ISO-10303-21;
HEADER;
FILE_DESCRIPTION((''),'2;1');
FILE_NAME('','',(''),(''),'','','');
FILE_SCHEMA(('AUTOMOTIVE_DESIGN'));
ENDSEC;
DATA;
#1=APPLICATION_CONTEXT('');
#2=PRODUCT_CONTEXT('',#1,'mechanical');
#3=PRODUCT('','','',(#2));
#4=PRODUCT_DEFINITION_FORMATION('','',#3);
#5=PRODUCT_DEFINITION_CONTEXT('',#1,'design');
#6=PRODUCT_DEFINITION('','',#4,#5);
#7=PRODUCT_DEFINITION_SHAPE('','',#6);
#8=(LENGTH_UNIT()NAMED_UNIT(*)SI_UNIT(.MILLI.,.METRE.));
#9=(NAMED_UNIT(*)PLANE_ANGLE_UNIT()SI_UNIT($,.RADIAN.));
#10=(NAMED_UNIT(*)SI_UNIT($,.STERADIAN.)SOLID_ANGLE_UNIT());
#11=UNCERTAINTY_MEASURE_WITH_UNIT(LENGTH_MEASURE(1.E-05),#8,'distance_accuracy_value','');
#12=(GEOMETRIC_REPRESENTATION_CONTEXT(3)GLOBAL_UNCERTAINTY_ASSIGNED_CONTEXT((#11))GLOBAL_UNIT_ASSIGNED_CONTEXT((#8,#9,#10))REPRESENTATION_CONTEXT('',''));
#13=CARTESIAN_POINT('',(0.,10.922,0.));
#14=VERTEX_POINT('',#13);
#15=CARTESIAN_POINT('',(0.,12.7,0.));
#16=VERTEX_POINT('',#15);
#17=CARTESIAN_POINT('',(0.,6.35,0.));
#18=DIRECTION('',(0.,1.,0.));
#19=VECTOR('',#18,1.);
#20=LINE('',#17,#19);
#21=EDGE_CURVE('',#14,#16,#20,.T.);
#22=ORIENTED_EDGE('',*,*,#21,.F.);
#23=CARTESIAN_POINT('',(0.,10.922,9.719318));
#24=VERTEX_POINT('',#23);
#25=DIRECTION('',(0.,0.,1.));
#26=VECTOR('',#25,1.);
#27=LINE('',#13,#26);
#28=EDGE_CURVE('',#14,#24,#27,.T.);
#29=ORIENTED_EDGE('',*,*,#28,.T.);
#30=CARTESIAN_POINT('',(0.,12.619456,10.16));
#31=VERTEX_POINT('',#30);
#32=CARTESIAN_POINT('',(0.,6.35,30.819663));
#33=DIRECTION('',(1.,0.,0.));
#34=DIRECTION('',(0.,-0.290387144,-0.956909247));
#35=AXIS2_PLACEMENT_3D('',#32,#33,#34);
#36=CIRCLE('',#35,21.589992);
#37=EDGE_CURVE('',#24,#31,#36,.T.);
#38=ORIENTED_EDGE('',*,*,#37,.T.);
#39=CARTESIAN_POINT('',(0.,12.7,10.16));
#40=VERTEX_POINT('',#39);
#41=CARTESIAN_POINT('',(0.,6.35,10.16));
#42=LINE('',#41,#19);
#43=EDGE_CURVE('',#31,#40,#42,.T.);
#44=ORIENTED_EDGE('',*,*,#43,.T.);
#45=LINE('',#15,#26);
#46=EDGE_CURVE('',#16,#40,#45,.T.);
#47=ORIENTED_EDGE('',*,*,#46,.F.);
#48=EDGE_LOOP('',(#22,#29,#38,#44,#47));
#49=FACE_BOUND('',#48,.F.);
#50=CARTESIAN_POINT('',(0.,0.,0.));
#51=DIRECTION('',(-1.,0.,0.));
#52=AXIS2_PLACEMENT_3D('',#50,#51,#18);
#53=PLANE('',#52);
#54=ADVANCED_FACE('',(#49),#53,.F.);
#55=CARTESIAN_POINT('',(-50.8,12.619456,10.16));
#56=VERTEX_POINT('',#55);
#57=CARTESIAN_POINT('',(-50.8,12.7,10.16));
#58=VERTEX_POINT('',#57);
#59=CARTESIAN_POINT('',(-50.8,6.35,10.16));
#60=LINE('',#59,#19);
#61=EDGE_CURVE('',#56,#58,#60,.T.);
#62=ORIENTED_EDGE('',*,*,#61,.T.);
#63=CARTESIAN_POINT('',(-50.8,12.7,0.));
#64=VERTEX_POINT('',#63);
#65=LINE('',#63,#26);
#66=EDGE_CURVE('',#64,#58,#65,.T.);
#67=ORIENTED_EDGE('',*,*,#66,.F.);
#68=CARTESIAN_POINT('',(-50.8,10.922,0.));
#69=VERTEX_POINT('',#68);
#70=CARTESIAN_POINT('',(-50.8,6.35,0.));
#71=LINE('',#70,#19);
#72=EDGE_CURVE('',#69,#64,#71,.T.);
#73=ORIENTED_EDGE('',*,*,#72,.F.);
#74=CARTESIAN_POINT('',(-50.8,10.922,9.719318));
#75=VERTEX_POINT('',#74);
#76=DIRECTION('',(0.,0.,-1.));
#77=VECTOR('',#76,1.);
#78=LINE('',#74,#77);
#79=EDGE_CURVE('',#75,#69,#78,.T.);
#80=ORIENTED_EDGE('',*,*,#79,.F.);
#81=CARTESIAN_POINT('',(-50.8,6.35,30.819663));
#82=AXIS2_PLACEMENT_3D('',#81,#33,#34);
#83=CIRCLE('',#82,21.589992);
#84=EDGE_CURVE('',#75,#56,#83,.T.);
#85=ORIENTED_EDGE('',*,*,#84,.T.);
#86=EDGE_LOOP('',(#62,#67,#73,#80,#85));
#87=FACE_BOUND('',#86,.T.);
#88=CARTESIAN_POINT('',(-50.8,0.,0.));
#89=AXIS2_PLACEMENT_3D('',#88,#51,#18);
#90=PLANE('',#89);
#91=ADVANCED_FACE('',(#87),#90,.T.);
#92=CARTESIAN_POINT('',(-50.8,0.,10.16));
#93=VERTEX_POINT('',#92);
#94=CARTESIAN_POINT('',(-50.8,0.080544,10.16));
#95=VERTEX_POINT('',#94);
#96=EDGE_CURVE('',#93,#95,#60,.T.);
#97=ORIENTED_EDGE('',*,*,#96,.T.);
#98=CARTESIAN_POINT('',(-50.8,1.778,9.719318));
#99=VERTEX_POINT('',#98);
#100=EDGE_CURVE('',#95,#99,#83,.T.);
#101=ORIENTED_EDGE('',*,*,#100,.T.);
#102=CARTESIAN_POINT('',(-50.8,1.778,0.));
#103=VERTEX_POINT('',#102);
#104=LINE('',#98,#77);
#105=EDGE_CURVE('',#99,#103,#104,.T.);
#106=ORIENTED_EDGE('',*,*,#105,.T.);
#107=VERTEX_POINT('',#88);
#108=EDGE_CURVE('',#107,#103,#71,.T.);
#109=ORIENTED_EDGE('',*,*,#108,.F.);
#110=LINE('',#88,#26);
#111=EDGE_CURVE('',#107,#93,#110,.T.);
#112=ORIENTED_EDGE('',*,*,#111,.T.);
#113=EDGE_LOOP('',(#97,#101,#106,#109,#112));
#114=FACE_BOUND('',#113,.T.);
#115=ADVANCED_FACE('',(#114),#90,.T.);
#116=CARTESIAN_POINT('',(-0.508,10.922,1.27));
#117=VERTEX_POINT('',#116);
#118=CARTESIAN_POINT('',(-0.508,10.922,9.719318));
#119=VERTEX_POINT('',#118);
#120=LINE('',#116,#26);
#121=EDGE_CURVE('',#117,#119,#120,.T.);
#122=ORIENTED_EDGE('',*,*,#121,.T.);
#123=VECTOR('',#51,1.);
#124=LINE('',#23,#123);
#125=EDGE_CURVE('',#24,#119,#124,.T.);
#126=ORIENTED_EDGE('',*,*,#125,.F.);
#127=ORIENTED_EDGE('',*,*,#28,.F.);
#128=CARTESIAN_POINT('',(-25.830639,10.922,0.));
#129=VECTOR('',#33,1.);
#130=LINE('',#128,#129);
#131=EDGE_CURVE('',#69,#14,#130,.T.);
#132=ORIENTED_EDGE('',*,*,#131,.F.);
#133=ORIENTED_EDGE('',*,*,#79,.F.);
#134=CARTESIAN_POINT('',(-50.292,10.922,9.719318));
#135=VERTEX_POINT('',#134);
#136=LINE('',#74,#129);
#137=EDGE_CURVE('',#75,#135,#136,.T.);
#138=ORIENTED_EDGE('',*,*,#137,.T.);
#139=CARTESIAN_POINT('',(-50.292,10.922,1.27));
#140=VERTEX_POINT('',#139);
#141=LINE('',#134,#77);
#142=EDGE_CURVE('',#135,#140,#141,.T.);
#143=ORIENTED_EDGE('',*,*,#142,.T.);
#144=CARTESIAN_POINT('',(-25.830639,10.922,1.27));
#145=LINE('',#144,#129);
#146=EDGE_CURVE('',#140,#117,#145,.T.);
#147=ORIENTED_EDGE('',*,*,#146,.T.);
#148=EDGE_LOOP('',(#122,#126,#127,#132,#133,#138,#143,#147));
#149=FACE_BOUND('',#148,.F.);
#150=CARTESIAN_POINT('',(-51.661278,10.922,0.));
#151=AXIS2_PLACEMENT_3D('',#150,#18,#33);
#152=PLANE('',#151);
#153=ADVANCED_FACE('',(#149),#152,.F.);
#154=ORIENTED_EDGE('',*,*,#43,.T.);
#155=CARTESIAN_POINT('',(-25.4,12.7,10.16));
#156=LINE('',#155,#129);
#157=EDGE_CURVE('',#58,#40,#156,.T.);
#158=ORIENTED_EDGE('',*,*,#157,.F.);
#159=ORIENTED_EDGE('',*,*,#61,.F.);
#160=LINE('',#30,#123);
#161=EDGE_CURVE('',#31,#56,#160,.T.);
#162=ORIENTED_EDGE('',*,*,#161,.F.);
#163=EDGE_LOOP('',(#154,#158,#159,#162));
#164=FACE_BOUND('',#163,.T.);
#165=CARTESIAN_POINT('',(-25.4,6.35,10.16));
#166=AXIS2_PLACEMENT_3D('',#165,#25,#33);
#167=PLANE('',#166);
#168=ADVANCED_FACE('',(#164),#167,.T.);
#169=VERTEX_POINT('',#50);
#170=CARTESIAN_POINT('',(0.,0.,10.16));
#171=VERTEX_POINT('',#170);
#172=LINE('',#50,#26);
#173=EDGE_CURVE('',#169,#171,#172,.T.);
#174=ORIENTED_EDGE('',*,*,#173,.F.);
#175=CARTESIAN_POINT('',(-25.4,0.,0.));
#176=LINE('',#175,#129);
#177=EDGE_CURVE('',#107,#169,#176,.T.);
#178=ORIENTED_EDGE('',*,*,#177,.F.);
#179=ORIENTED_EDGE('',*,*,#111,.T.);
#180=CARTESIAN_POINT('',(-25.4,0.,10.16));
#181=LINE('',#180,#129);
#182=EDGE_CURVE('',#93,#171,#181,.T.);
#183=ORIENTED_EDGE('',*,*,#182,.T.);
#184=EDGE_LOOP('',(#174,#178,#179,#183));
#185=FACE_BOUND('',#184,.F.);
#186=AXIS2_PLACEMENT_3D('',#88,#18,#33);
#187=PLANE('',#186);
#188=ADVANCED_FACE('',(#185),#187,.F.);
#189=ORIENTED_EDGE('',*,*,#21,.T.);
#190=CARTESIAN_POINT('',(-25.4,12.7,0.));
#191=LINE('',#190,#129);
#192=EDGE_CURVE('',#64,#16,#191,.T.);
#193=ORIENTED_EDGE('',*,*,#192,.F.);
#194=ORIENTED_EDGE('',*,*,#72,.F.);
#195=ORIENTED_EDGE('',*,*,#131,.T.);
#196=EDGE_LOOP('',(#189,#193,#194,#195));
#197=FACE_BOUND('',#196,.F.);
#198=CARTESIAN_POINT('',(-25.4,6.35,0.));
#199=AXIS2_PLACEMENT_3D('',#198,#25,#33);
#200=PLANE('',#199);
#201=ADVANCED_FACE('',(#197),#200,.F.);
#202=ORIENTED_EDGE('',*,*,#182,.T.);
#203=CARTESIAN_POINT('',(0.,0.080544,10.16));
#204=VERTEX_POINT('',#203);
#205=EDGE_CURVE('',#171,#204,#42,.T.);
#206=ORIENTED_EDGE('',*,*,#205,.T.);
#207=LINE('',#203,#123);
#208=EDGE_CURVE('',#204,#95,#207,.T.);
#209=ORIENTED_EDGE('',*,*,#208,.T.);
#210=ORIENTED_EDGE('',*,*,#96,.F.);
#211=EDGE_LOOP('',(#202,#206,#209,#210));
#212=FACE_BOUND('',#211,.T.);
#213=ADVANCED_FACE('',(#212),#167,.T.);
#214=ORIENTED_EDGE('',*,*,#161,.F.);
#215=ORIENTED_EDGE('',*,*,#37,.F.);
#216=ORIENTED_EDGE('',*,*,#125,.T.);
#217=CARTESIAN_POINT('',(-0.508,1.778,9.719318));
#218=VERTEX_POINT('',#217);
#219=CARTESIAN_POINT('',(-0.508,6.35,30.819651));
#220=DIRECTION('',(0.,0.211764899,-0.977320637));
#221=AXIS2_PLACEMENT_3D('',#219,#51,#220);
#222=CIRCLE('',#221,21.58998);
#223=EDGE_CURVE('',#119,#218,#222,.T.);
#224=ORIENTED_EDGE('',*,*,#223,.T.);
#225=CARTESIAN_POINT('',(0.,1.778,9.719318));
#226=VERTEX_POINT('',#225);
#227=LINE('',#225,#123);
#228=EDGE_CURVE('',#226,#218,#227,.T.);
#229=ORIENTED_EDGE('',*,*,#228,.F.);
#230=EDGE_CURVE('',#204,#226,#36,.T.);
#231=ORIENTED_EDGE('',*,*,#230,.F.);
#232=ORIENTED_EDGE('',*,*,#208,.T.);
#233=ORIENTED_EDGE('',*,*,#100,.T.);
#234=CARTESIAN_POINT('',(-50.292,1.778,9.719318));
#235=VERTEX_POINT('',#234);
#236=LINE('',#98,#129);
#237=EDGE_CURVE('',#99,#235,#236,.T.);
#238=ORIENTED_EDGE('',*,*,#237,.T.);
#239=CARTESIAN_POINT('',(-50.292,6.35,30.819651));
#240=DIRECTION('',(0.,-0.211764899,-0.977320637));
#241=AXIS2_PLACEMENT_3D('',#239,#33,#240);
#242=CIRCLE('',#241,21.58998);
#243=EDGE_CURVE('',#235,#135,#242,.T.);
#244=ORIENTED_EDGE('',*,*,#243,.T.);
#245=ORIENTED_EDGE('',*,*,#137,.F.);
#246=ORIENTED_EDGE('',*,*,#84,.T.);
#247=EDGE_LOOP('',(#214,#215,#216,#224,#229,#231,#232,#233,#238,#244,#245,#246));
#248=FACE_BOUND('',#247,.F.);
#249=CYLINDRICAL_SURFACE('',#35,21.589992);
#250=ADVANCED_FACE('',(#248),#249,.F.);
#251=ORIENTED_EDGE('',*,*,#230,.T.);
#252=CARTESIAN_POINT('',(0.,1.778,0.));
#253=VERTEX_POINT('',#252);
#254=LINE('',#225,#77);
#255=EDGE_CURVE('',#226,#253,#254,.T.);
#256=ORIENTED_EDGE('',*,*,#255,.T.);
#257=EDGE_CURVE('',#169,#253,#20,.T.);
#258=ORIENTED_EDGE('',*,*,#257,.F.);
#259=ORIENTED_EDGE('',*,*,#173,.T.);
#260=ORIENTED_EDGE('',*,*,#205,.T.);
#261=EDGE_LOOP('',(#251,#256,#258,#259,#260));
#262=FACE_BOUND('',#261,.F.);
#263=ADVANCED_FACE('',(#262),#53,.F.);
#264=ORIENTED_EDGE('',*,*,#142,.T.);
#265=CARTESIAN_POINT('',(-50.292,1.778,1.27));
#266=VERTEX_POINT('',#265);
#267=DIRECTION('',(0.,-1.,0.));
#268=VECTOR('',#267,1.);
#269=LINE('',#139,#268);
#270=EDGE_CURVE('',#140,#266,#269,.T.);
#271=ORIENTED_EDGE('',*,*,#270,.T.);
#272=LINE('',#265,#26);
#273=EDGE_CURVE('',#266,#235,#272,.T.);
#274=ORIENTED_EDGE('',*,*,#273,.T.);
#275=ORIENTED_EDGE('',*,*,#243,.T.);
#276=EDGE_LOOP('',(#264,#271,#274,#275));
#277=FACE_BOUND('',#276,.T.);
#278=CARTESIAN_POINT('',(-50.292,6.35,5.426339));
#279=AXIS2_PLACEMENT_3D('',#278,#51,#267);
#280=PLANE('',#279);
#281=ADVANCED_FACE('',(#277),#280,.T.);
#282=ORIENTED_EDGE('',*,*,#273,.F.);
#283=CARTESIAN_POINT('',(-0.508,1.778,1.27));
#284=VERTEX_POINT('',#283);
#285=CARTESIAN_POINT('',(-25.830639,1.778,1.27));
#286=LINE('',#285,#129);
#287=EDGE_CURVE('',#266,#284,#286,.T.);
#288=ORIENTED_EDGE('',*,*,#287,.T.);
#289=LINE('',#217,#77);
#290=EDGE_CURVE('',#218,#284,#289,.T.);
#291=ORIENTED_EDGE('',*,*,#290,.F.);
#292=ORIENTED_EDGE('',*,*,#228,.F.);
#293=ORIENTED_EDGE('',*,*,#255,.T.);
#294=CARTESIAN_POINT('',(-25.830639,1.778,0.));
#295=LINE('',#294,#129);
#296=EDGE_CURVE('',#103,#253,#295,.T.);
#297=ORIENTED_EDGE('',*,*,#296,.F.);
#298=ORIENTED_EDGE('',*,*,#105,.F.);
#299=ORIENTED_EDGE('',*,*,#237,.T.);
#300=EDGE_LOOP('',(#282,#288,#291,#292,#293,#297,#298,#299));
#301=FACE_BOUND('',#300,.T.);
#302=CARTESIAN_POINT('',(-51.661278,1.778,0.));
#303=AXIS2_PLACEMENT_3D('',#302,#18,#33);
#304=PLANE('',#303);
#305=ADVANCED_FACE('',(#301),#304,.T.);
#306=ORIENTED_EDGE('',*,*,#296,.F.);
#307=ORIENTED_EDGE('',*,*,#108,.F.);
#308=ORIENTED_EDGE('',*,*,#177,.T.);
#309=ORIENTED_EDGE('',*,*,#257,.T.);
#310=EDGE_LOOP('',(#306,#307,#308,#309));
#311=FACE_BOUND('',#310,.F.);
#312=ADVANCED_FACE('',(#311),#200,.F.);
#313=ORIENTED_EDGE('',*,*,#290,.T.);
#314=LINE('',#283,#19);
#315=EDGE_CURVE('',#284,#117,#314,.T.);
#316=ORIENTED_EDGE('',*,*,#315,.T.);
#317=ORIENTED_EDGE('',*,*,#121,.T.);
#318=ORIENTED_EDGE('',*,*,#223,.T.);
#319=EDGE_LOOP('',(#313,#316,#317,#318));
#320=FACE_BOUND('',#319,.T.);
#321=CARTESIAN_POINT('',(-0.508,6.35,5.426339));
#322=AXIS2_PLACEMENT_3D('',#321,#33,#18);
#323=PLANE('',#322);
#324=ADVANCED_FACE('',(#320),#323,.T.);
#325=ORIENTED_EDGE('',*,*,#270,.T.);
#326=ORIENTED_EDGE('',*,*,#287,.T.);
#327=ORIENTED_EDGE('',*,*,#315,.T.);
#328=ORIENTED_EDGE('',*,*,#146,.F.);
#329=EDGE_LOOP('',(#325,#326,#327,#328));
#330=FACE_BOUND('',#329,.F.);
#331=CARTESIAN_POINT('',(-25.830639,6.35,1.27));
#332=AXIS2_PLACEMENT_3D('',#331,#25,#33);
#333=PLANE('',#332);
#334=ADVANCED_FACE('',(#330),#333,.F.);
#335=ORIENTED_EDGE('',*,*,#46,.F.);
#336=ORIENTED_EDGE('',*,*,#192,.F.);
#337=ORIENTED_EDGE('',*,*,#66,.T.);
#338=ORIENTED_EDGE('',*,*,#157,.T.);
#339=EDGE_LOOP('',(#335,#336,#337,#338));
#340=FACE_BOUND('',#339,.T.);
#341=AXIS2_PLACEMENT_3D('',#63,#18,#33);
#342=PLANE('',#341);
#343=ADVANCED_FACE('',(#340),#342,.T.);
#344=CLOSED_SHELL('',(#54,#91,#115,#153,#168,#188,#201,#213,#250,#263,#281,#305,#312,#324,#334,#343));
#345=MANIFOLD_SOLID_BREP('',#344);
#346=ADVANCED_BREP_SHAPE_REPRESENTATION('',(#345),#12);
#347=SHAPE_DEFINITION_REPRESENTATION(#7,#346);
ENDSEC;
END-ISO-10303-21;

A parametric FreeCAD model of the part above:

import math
import FreeCAD as App
import Part
import Sketcher

V = App.Vector
Q = App.Units.Quantity

doc = App.newDocument("Part")
body = doc.addObject("PartDesign::Body", "Body")

sketch1 = body.newObject("Sketcher::SketchObject", "Sketch")
sketch1.AttachmentSupport = (doc.getObject("XY_Plane"), [""])
sketch1.MapMode = "FlatFace"
sketch1.addGeometry([
    Part.LineSegment(V(-50.8, 12.7, 0), V(-50.8, 0, 0)),
    Part.LineSegment(V(-50.8, 0, 0), V(0, 0, 0)),
    Part.LineSegment(V(0, 0, 0), V(0, 12.7, 0)),
    Part.LineSegment(V(0, 12.7, 0), V(-50.8, 12.7, 0)),
], False)
sketch1.addConstraint([
    Sketcher.Constraint("Coincident", 0, 2, 1, 1),
    Sketcher.Constraint("Coincident", 1, 2, 2, 1),
    Sketcher.Constraint("Coincident", 2, 2, 3, 1),
    Sketcher.Constraint("Coincident", 3, 2, 0, 1),
    Sketcher.Constraint("Vertical", 0),
    Sketcher.Constraint("Horizontal", 1),
    Sketcher.Constraint("Vertical", 2),
    Sketcher.Constraint("Horizontal", 3),
    Sketcher.Constraint("Coincident", 1, 2, -1, 1),
    Sketcher.Constraint("DistanceX", 1, 1, 1, 2, Q("2 in")),
    Sketcher.Constraint("DistanceY", 0, 2, 0, 1, Q("0.5 in")),
])
pad1 = body.newObject("PartDesign::Pad", "Pad")
pad1.Profile = sketch1
pad1.Length = Q("0.4 in")

sketch2 = body.newObject("Sketcher::SketchObject", "Sketch001")
sketch2.AttachmentSupport = (doc.getObject("XY_Plane"), [""])
sketch2.MapMode = "FlatFace"
sketch2.addGeometry([
    Part.LineSegment(V(-51.661278, 10.922, 0), V(-51.661278, 1.778, 0)),
    Part.LineSegment(V(-51.661278, 1.778, 0), V(0, 1.778, 0)),
    Part.LineSegment(V(0, 1.778, 0), V(0, 10.922, 0)),
    Part.LineSegment(V(0, 10.922, 0), V(-51.661278, 10.922, 0)),
], False)
sketch2.addConstraint([
    Sketcher.Constraint("Coincident", 0, 2, 1, 1),
    Sketcher.Constraint("Coincident", 1, 2, 2, 1),
    Sketcher.Constraint("Coincident", 2, 2, 3, 1),
    Sketcher.Constraint("Coincident", 3, 2, 0, 1),
    Sketcher.Constraint("Vertical", 0),
    Sketcher.Constraint("Horizontal", 1),
    Sketcher.Constraint("Vertical", 2),
    Sketcher.Constraint("Horizontal", 3),
    Sketcher.Constraint("PointOnObject", 1, 2, -2),
    Sketcher.Constraint("DistanceY", 0, 2, 0, 1, Q("0.36 in")),
    Sketcher.Constraint("DistanceY", -1, 1, 0, 2, Q("0.07 in")),
    Sketcher.Constraint("DistanceX", 1, 1, 1, 2, Q("51.661278 mm")),
])
pocket1 = body.newObject("PartDesign::Pocket", "Pocket")
pocket1.Profile = sketch2
pocket1.Length = Q("0.05 in")
pocket1.Reversed = True

sketch3 = body.newObject("Sketcher::SketchObject", "Sketch002")
sketch3.AttachmentSupport = (doc.getObject("YZ_Plane"), [""])
sketch3.MapMode = "FlatFace"
sketch3.addGeometry([
    Part.ArcOfCircle(Part.Circle(V(6.350002, 30.81967, 0), V(0, 0, 1), 21.589998), math.radians(-73.118875), math.radians(0.000002)),
    Part.ArcOfCircle(Part.Circle(V(6.35, 30.819671, 0), V(0, 0, 1), 21.59), math.radians(-0.000001), math.radians(253.118871)),
    Part.ArcOfCircle(Part.Circle(V(6.35, 30.819663, 0), V(0, 0, 1), 21.589992), math.radians(-106.881135), math.radians(-73.118865)),
], False)
sketch3.addConstraint([
    Sketcher.Constraint("Tangent", 0, 2, 1, 1),
    Sketcher.Constraint("Tangent", 1, 2, 2, 1),
    Sketcher.Constraint("Tangent", 2, 2, 0, 1),
    Sketcher.Constraint("Horizontal", 1, 3, 0, 2),
    Sketcher.Constraint("Horizontal", 1, 2, 2, 2),
    Sketcher.Constraint("Radius", 0, Q("0.8499999 in")),
    Sketcher.Constraint("DistanceX", -1, 1, 0, 2, Q("1.1 in")),
    Sketcher.Constraint("DistanceY", -1, 1, 1, 2, Q("0.4 in")),
    Sketcher.Constraint("DistanceY", -1, 1, 0, 3, Q("30.81967 mm")),
])
pocket2 = body.newObject("PartDesign::Pocket", "Pocket001")
pocket2.Profile = sketch3
pocket2.Length = Q("2.35 in")

sketch4 = body.newObject("Sketcher::SketchObject", "Sketch003")
sketch4.AttachmentSupport = (doc.getObject("YZ_Plane"), [""])
sketch4.MapMode = "FlatFace"
sketch4.addGeometry([
    Part.LineSegment(V(1.778, 9.719318, 0), V(1.778, 1.27, 0)),
    Part.LineSegment(V(1.778, 1.27, 0), V(10.922, 1.27, 0)),
    Part.LineSegment(V(10.922, 1.27, 0), V(10.922, 9.719318, 0)),
    Part.ArcOfCircle(Part.Circle(V(6.35, 30.819651, 0), V(0, 0, 1), 21.58998), math.radians(-102.2258), math.radians(-77.7742)),
], False)
sketch4.addConstraint([
    Sketcher.Constraint("Coincident", 0, 2, 1, 1),
    Sketcher.Constraint("Coincident", 1, 2, 2, 1),
    Sketcher.Constraint("Coincident", 2, 2, 3, 2),
    Sketcher.Constraint("Coincident", 3, 1, 0, 1),
    Sketcher.Constraint("Vertical", 0),
    Sketcher.Constraint("Horizontal", 1),
    Sketcher.Constraint("Vertical", 2),
    Sketcher.Constraint("Horizontal", 2, 2, 3, 1),
    Sketcher.Constraint("DistanceX", 1, 1, 1, 2, Q("0.36 in")),
    Sketcher.Constraint("DistanceX", -1, 1, 3, 3, Q("0.25 in")),
    Sketcher.Constraint("DistanceY", -1, 1, 0, 2, Q("0.05 in")),
    Sketcher.Constraint("Radius", 3, Q("21.58998 mm")),
    Sketcher.Constraint("DistanceY", 0, 2, 0, 1, Q("8.449318 mm")),
])
pocket3 = body.newObject("PartDesign::Pocket", "Pocket002")
pocket3.Profile = sketch4
pocket3.Length = Q("0.02 in")

sketch5 = body.newObject("Sketcher::SketchObject", "Sketch004")
sketch5.AttachmentSupport = (doc.getObject("YZ_Plane"), [""])
sketch5.MapMode = "FlatFace"
sketch5.AttachmentOffset = App.Placement(V(0, 0, -2 * 25.4), App.Rotation())
sketch5.addGeometry([
    Part.LineSegment(V(10.922, 1.27, 0), V(1.778, 1.27, 0)),
    Part.LineSegment(V(1.778, 1.27, 0), V(1.778, 9.719318, 0)),
    Part.ArcOfCircle(Part.Circle(V(6.35, 30.819651, 0), V(0, 0, 1), 21.58998), math.radians(-102.2258), math.radians(-77.7742)),
    Part.LineSegment(V(10.922, 9.719318, 0), V(10.922, 1.27, 0)),
], False)
sketch5.addConstraint([
    Sketcher.Constraint("Coincident", 0, 2, 1, 1),
    Sketcher.Constraint("Coincident", 1, 2, 2, 1),
    Sketcher.Constraint("Coincident", 2, 2, 3, 1),
    Sketcher.Constraint("Coincident", 3, 2, 0, 1),
    Sketcher.Constraint("Horizontal", 0),
    Sketcher.Constraint("Vertical", 1),
    Sketcher.Constraint("Vertical", 3),
    Sketcher.Constraint("Horizontal", 1, 2, 2, 2),
    Sketcher.Constraint("DistanceX", 0, 2, 0, 1, Q("0.36 in")),
    Sketcher.Constraint("DistanceX", -1, 1, 2, 3, Q("0.25 in")),
    Sketcher.Constraint("DistanceY", -1, 1, 0, 2, Q("0.05 in")),
    Sketcher.Constraint("Radius", 2, Q("21.58998 mm")),
    Sketcher.Constraint("DistanceY", 1, 1, 1, 2, Q("8.449318 mm")),
])
pocket4 = body.newObject("PartDesign::Pocket", "Pocket003")
pocket4.Profile = sketch5
pocket4.Length = Q("0.02 in")
pocket4.Reversed = True

doc.recompute()
